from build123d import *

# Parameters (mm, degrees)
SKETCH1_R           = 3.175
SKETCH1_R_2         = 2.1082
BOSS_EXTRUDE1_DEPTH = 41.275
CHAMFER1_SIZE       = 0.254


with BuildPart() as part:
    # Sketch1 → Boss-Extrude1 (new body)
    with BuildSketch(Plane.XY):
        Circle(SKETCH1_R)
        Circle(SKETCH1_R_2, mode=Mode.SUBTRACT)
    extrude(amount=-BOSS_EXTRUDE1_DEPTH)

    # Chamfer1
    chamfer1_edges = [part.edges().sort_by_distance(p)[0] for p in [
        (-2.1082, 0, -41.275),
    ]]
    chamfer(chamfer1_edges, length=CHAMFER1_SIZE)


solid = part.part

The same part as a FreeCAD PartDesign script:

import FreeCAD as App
import Part
import Sketcher

V = App.Vector
Q = App.Units.Quantity


def edges_at(feature, points):
    """Names of the edges that pass closest to the given points."""
    edges = feature.Shape.Edges
    near = lambda p: min(range(len(edges)), key=lambda i: edges[i].distToShape(Part.Vertex(*p))[0])
    return sorted({f"Edge{near(p) + 1}" for p in points})

doc = App.newDocument("Part")
body = doc.addObject("PartDesign::Body", "Body")

# Sketch on XY plane
sketch1 = doc.addObject("Sketcher::SketchObject", "Sketch")
body.addObject(sketch1)
sketch1.AttachmentSupport = (doc.XY_Plane, [""])
sketch1.MapMode = "FlatFace"
sketch1.addGeometry(Part.Circle(V(0, 0, 0), V(0, 0, 1), 3.2), False)
sketch1.addGeometry(Part.Circle(V(0, 0, 0), V(0, 0, 1), 2.1), False)
sketch1.addConstraint(Sketcher.Constraint("Coincident", 0, 3, -1, 1))
sketch1.addConstraint(Sketcher.Constraint("Coincident", 1, 3, -1, 1))
sketch1.addConstraint(Sketcher.Constraint("Diameter", 0, Q("0.25 in")))
sketch1.addConstraint(Sketcher.Constraint("Diameter", 1, Q("0.166 in")))
pad1 = doc.addObject("PartDesign::Pad", "Pad")
body.addObject(pad1)
pad1.Profile = sketch1
pad1.Length = Q("1.625 in")
pad1.Reversed = True
doc.recompute()

chamfer = doc.addObject("PartDesign::Chamfer", "Chamfer")
body.addObject(chamfer)
chamfer.Base = (pad1, edges_at(pad1, [(-2.108, 0, -41.275)]))
chamfer.Size = Q("0.01 in")

doc.recompute()
